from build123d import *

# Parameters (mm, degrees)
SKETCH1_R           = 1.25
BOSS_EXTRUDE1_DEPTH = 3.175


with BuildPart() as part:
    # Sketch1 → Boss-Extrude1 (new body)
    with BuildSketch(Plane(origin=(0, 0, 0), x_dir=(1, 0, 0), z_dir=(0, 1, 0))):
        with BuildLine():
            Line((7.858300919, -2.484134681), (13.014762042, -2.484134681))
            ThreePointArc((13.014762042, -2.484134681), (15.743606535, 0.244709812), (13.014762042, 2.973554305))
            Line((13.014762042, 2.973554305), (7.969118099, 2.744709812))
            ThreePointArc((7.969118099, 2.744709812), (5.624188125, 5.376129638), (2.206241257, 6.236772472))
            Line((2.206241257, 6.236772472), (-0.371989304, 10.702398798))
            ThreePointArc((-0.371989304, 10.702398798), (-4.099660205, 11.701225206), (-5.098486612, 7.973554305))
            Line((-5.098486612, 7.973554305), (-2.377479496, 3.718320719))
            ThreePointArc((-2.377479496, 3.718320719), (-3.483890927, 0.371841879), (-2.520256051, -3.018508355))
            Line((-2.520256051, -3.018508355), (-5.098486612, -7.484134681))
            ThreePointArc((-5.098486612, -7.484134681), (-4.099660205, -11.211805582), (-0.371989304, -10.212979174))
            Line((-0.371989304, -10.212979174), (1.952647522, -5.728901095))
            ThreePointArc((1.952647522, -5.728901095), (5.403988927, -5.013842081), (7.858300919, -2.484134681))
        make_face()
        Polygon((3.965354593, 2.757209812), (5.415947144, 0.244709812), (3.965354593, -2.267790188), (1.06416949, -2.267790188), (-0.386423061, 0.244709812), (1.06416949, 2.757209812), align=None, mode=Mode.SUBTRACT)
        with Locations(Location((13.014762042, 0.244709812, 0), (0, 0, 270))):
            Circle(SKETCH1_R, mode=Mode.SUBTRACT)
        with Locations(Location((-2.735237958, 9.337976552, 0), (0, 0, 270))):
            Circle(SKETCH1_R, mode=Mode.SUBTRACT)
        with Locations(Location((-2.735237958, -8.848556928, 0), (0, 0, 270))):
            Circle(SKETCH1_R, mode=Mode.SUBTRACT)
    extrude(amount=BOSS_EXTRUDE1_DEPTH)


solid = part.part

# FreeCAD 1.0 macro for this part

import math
import FreeCAD as App
import Part
import Sketcher
from FreeCAD import Vector
Q = App.Units.Quantity

doc = App.newDocument("Part")
params = doc.addObject("Spreadsheet::Sheet", "Params")
for row, (alias, value) in enumerate([
    ("sketch1_radius", "6 mm"),
    ("sketch1_diameter", "2.5 mm"),
    ("pad1_length", "3.175 mm"),
], start=1):
    params.set(f"A{row}", alias)
    params.set(f"B{row}", "=" + value)
    params.setAlias(f"B{row}", alias)

body = doc.addObject("PartDesign::Body", "Body")

sketch1 = doc.addObject("Sketcher::SketchObject", "Sketch")
body.addObject(sketch1)
sketch1.AttachmentSupport = (doc.XZ_Plane, [""])
sketch1.MapMode = "FlatFace"
sketch1.addGeometry(Part.LineSegment(Vector(7.9, 2.5, 0), Vector(13, 2.5, 0)), False)
sketch1.addGeometry(Part.ArcOfCircle(Part.Circle(Vector(13, -0.2, 0), Vector(0, 0, 1), 2.7), math.radians(-90), math.radians(90)), False)
sketch1.addGeometry(Part.LineSegment(Vector(13, -3, 0), Vector(8, -2.7, 0)), False)
sketch1.addGeometry(Part.ArcOfCircle(Part.Circle(Vector(2.5, -0.2, 0), Vector(0, 0, 1), 6), math.radians(-93), math.radians(-25)), False)
sketch1.addGeometry(Part.LineSegment(Vector(2.2, -6.2, 0), Vector(-0.4, -10.7, 0)), False)
sketch1.addGeometry(Part.ArcOfCircle(Part.Circle(Vector(-2.7, -9.3, 0), Vector(0, 0, 1), 2.7), math.radians(150), math.radians(330)), False)
sketch1.addGeometry(Part.LineSegment(Vector(-5.1, -8, 0), Vector(-2.4, -3.7, 0)), False)
sketch1.addGeometry(Part.ArcOfCircle(Part.Circle(Vector(2.5, -0.2, 0), Vector(0, 0, 1), 6), math.radians(147), math.radians(215)), False)
sketch1.addGeometry(Part.LineSegment(Vector(-2.5, 3, 0), Vector(-5.1, 7.5, 0)), False)
sketch1.addGeometry(Part.ArcOfCircle(Part.Circle(Vector(-2.7, 8.8, 0), Vector(0, 0, 1), 2.7), math.radians(30), math.radians(210)), False)
sketch1.addGeometry(Part.LineSegment(Vector(-0.4, 10.2, 0), Vector(2, 5.7, 0)), False)
sketch1.addGeometry(Part.ArcOfCircle(Part.Circle(Vector(2.5, -0.2, 0), Vector(0, 0, 1), 6), math.radians(27), math.radians(95)), False)
sketch1.addGeometry(Part.Circle(Vector(-2.7, 8.8, 0), Vector(0, 0, 1), 1.2), False)
sketch1.addGeometry(Part.LineSegment(Vector(1.1, -2.8, 0), Vector(4, -2.8, 0)), False)
sketch1.addGeometry(Part.LineSegment(Vector(4, -2.8, 0), Vector(5.4, -0.2, 0)), False)
sketch1.addGeometry(Part.LineSegment(Vector(5.4, -0.2, 0), Vector(4, 2.3, 0)), False)
sketch1.addGeometry(Part.LineSegment(Vector(4, 2.3, 0), Vector(1.1, 2.3, 0)), False)
sketch1.addGeometry(Part.LineSegment(Vector(1.1, 2.3, 0), Vector(-0.4, -0.2, 0)), False)
sketch1.addGeometry(Part.LineSegment(Vector(-0.4, -0.2, 0), Vector(1.1, -2.8, 0)), False)
sketch1.addGeometry(Part.Circle(Vector(-2.7, -9.3, 0), Vector(0, 0, 1), 1.2), False)
sketch1.addGeometry(Part.Circle(Vector(13, -0.2, 0), Vector(0, 0, 1), 1.2), False)
sketch1.addConstraint(Sketcher.Constraint("Tangent", 0, 2, 1, 2))
sketch1.addConstraint(Sketcher.Constraint("Coincident", 1, 1, 2, 1))
sketch1.addConstraint(Sketcher.Constraint("Coincident", 2, 2, 3, 2))
sketch1.addConstraint(Sketcher.Constraint("Coincident", 3, 1, 4, 1))
sketch1.addConstraint(Sketcher.Constraint("Tangent", 4, 2, 5, 2))
sketch1.addConstraint(Sketcher.Constraint("Coincident", 5, 1, 6, 1))
sketch1.addConstraint(Sketcher.Constraint("Coincident", 6, 2, 7, 2))
sketch1.addConstraint(Sketcher.Constraint("Coincident", 7, 1, 8, 1))
sketch1.addConstraint(Sketcher.Constraint("Tangent", 8, 2, 9, 2))
sketch1.addConstraint(Sketcher.Constraint("Coincident", 9, 1, 10, 1))
sketch1.addConstraint(Sketcher.Constraint("Coincident", 10, 2, 11, 2))
sketch1.addConstraint(Sketcher.Constraint("Coincident", 11, 1, 0, 1))
sketch1.addConstraint(Sketcher.Constraint("Coincident", 13, 2, 14, 1))
sketch1.addConstraint(Sketcher.Constraint("Coincident", 14, 2, 15, 1))
sketch1.addConstraint(Sketcher.Constraint("Coincident", 15, 2, 16, 1))
sketch1.addConstraint(Sketcher.Constraint("Coincident", 16, 2, 17, 1))
sketch1.addConstraint(Sketcher.Constraint("Coincident", 17, 2, 18, 1))
sketch1.addConstraint(Sketcher.Constraint("Coincident", 18, 2, 13, 1))
sketch1.addConstraint(Sketcher.Constraint("Horizontal", 0))
sketch1.addConstraint(Sketcher.Constraint("Horizontal", 13))
sketch1.addConstraint(Sketcher.Constraint("Horizontal", 16))
sketch1.addConstraint(Sketcher.Constraint("Coincident", 7, 3, 3, 3))
sketch1.addConstraint(Sketcher.Constraint("Coincident", 11, 3, 3, 3))
sketch1.addConstraint(Sketcher.Constraint("Coincident", 12, 3, 9, 3))
sketch1.addConstraint(Sketcher.Constraint("Coincident", 19, 3, 5, 3))
sketch1.addConstraint(Sketcher.Constraint("Coincident", 20, 3, 1, 3))
sketch1.addConstraint(Sketcher.Constraint("Equal", 1, 5))
sketch1.addConstraint(Sketcher.Constraint("Equal", 3, 7))
sketch1.addConstraint(Sketcher.Constraint("Equal", 5, 9))
sketch1.addConstraint(Sketcher.Constraint("Equal", 7, 11))
sketch1.addConstraint(Sketcher.Constraint("Equal", 12, 19))
sketch1.addConstraint(Sketcher.Constraint("Equal", 19, 20))
sketch1.addConstraint(Sketcher.Constraint("Parallel", 4, 14))
sketch1.addConstraint(Sketcher.Constraint("Parallel", 8, 15))
sketch1.addConstraint(Sketcher.Constraint("Parallel", 14, 17))
sketch1.addConstraint(Sketcher.Constraint("Parallel", 15, 18))
sketch1.addConstraint(Sketcher.Constraint("Horizontal", 1, 3, 3, 3))
sketch1.addConstraint(Sketcher.Constraint("Horizontal", 20, 3, 14, 2))
sketch1.addConstraint(Sketcher.Constraint("Horizontal", 14, 2, 17, 2))
sketch1.addConstraint(Sketcher.Constraint("Vertical", 5, 3, 9, 3))
sketch1.addConstraint(Sketcher.Constraint("Vertical", 0, 2, 1, 1))
sketch1.addConstraint(Sketcher.Constraint("Vertical", 5, 1, 8, 2))
sketch1.addConstraint(Sketcher.Constraint("Vertical", 4, 2, 9, 1))
sketch1.addConstraint(Sketcher.Constraint("Vertical", 13, 2, 15, 2))
sketch1.addConstraint(Sketcher.Constraint("Vertical", 16, 2, 18, 2))
sketch1.addConstraint(Sketcher.Constraint("Equal", 2, 6))
sketch1.addConstraint(Sketcher.Constraint("Equal", 4, 8))
sketch1.addConstraint(Sketcher.Constraint("Equal", 6, 10))
sketch1.addConstraint(Sketcher.Constraint("Radius", 3, Q("6 mm")))
sketch1.addConstraint(Sketcher.Constraint("Diameter", 12, Q("2.5 mm")))
sketch1.addConstraint(Sketcher.Constraint("Angle", 4, Q("-120 deg")))
sketch1.addConstraint(Sketcher.Constraint("DistanceX", 3, 3, 1, 3, Q("10.5 mm")))
sketch1.addConstraint(Sketcher.Constraint("DistanceY", 2, 2, 1, 3, Q("2.5 mm")))
sketch1.addConstraint(Sketcher.Constraint("DistanceX", 5, 3, 3, 3, Q("5.25 mm")))
sketch1.addConstraint(Sketcher.Constraint("Radius", 1, Q("2.728844 mm")))
sketch1.addConstraint(Sketcher.Constraint("DistanceY", 4, 2, -1, 1, Q("10.702399 mm")))
sketch1.addConstraint(Sketcher.Constraint("DistanceY", -1, 1, 10, 2, Q("5.728901 mm")))
sketch1.addConstraint(Sketcher.Constraint("DistanceX", -1, 1, 11, 1, Q("7.858301 mm")))
sketch1.addConstraint(Sketcher.Constraint("DistanceY", 13, 2, 3, 3, Q("2.5125 mm")))
sketch1.addConstraint(Sketcher.Constraint("DistanceX", 13, 1, 13, 2, Q("2.901185 mm")))
sketch1.addConstraint(Sketcher.Constraint("DistanceX", -1, 1, 16, 2, Q("1.064169 mm")))
sketch1.setExpression("Constraints[48]", "Params.sketch1_radius")
sketch1.setExpression("Constraints[49]", "Params.sketch1_diameter")
pad1 = doc.addObject("PartDesign::Pad", "Pad")
body.addObject(pad1)
pad1.Profile = sketch1
pad1.setExpression("Length", "Params.pad1_length")
pad1.Reversed = True

doc.recompute()
